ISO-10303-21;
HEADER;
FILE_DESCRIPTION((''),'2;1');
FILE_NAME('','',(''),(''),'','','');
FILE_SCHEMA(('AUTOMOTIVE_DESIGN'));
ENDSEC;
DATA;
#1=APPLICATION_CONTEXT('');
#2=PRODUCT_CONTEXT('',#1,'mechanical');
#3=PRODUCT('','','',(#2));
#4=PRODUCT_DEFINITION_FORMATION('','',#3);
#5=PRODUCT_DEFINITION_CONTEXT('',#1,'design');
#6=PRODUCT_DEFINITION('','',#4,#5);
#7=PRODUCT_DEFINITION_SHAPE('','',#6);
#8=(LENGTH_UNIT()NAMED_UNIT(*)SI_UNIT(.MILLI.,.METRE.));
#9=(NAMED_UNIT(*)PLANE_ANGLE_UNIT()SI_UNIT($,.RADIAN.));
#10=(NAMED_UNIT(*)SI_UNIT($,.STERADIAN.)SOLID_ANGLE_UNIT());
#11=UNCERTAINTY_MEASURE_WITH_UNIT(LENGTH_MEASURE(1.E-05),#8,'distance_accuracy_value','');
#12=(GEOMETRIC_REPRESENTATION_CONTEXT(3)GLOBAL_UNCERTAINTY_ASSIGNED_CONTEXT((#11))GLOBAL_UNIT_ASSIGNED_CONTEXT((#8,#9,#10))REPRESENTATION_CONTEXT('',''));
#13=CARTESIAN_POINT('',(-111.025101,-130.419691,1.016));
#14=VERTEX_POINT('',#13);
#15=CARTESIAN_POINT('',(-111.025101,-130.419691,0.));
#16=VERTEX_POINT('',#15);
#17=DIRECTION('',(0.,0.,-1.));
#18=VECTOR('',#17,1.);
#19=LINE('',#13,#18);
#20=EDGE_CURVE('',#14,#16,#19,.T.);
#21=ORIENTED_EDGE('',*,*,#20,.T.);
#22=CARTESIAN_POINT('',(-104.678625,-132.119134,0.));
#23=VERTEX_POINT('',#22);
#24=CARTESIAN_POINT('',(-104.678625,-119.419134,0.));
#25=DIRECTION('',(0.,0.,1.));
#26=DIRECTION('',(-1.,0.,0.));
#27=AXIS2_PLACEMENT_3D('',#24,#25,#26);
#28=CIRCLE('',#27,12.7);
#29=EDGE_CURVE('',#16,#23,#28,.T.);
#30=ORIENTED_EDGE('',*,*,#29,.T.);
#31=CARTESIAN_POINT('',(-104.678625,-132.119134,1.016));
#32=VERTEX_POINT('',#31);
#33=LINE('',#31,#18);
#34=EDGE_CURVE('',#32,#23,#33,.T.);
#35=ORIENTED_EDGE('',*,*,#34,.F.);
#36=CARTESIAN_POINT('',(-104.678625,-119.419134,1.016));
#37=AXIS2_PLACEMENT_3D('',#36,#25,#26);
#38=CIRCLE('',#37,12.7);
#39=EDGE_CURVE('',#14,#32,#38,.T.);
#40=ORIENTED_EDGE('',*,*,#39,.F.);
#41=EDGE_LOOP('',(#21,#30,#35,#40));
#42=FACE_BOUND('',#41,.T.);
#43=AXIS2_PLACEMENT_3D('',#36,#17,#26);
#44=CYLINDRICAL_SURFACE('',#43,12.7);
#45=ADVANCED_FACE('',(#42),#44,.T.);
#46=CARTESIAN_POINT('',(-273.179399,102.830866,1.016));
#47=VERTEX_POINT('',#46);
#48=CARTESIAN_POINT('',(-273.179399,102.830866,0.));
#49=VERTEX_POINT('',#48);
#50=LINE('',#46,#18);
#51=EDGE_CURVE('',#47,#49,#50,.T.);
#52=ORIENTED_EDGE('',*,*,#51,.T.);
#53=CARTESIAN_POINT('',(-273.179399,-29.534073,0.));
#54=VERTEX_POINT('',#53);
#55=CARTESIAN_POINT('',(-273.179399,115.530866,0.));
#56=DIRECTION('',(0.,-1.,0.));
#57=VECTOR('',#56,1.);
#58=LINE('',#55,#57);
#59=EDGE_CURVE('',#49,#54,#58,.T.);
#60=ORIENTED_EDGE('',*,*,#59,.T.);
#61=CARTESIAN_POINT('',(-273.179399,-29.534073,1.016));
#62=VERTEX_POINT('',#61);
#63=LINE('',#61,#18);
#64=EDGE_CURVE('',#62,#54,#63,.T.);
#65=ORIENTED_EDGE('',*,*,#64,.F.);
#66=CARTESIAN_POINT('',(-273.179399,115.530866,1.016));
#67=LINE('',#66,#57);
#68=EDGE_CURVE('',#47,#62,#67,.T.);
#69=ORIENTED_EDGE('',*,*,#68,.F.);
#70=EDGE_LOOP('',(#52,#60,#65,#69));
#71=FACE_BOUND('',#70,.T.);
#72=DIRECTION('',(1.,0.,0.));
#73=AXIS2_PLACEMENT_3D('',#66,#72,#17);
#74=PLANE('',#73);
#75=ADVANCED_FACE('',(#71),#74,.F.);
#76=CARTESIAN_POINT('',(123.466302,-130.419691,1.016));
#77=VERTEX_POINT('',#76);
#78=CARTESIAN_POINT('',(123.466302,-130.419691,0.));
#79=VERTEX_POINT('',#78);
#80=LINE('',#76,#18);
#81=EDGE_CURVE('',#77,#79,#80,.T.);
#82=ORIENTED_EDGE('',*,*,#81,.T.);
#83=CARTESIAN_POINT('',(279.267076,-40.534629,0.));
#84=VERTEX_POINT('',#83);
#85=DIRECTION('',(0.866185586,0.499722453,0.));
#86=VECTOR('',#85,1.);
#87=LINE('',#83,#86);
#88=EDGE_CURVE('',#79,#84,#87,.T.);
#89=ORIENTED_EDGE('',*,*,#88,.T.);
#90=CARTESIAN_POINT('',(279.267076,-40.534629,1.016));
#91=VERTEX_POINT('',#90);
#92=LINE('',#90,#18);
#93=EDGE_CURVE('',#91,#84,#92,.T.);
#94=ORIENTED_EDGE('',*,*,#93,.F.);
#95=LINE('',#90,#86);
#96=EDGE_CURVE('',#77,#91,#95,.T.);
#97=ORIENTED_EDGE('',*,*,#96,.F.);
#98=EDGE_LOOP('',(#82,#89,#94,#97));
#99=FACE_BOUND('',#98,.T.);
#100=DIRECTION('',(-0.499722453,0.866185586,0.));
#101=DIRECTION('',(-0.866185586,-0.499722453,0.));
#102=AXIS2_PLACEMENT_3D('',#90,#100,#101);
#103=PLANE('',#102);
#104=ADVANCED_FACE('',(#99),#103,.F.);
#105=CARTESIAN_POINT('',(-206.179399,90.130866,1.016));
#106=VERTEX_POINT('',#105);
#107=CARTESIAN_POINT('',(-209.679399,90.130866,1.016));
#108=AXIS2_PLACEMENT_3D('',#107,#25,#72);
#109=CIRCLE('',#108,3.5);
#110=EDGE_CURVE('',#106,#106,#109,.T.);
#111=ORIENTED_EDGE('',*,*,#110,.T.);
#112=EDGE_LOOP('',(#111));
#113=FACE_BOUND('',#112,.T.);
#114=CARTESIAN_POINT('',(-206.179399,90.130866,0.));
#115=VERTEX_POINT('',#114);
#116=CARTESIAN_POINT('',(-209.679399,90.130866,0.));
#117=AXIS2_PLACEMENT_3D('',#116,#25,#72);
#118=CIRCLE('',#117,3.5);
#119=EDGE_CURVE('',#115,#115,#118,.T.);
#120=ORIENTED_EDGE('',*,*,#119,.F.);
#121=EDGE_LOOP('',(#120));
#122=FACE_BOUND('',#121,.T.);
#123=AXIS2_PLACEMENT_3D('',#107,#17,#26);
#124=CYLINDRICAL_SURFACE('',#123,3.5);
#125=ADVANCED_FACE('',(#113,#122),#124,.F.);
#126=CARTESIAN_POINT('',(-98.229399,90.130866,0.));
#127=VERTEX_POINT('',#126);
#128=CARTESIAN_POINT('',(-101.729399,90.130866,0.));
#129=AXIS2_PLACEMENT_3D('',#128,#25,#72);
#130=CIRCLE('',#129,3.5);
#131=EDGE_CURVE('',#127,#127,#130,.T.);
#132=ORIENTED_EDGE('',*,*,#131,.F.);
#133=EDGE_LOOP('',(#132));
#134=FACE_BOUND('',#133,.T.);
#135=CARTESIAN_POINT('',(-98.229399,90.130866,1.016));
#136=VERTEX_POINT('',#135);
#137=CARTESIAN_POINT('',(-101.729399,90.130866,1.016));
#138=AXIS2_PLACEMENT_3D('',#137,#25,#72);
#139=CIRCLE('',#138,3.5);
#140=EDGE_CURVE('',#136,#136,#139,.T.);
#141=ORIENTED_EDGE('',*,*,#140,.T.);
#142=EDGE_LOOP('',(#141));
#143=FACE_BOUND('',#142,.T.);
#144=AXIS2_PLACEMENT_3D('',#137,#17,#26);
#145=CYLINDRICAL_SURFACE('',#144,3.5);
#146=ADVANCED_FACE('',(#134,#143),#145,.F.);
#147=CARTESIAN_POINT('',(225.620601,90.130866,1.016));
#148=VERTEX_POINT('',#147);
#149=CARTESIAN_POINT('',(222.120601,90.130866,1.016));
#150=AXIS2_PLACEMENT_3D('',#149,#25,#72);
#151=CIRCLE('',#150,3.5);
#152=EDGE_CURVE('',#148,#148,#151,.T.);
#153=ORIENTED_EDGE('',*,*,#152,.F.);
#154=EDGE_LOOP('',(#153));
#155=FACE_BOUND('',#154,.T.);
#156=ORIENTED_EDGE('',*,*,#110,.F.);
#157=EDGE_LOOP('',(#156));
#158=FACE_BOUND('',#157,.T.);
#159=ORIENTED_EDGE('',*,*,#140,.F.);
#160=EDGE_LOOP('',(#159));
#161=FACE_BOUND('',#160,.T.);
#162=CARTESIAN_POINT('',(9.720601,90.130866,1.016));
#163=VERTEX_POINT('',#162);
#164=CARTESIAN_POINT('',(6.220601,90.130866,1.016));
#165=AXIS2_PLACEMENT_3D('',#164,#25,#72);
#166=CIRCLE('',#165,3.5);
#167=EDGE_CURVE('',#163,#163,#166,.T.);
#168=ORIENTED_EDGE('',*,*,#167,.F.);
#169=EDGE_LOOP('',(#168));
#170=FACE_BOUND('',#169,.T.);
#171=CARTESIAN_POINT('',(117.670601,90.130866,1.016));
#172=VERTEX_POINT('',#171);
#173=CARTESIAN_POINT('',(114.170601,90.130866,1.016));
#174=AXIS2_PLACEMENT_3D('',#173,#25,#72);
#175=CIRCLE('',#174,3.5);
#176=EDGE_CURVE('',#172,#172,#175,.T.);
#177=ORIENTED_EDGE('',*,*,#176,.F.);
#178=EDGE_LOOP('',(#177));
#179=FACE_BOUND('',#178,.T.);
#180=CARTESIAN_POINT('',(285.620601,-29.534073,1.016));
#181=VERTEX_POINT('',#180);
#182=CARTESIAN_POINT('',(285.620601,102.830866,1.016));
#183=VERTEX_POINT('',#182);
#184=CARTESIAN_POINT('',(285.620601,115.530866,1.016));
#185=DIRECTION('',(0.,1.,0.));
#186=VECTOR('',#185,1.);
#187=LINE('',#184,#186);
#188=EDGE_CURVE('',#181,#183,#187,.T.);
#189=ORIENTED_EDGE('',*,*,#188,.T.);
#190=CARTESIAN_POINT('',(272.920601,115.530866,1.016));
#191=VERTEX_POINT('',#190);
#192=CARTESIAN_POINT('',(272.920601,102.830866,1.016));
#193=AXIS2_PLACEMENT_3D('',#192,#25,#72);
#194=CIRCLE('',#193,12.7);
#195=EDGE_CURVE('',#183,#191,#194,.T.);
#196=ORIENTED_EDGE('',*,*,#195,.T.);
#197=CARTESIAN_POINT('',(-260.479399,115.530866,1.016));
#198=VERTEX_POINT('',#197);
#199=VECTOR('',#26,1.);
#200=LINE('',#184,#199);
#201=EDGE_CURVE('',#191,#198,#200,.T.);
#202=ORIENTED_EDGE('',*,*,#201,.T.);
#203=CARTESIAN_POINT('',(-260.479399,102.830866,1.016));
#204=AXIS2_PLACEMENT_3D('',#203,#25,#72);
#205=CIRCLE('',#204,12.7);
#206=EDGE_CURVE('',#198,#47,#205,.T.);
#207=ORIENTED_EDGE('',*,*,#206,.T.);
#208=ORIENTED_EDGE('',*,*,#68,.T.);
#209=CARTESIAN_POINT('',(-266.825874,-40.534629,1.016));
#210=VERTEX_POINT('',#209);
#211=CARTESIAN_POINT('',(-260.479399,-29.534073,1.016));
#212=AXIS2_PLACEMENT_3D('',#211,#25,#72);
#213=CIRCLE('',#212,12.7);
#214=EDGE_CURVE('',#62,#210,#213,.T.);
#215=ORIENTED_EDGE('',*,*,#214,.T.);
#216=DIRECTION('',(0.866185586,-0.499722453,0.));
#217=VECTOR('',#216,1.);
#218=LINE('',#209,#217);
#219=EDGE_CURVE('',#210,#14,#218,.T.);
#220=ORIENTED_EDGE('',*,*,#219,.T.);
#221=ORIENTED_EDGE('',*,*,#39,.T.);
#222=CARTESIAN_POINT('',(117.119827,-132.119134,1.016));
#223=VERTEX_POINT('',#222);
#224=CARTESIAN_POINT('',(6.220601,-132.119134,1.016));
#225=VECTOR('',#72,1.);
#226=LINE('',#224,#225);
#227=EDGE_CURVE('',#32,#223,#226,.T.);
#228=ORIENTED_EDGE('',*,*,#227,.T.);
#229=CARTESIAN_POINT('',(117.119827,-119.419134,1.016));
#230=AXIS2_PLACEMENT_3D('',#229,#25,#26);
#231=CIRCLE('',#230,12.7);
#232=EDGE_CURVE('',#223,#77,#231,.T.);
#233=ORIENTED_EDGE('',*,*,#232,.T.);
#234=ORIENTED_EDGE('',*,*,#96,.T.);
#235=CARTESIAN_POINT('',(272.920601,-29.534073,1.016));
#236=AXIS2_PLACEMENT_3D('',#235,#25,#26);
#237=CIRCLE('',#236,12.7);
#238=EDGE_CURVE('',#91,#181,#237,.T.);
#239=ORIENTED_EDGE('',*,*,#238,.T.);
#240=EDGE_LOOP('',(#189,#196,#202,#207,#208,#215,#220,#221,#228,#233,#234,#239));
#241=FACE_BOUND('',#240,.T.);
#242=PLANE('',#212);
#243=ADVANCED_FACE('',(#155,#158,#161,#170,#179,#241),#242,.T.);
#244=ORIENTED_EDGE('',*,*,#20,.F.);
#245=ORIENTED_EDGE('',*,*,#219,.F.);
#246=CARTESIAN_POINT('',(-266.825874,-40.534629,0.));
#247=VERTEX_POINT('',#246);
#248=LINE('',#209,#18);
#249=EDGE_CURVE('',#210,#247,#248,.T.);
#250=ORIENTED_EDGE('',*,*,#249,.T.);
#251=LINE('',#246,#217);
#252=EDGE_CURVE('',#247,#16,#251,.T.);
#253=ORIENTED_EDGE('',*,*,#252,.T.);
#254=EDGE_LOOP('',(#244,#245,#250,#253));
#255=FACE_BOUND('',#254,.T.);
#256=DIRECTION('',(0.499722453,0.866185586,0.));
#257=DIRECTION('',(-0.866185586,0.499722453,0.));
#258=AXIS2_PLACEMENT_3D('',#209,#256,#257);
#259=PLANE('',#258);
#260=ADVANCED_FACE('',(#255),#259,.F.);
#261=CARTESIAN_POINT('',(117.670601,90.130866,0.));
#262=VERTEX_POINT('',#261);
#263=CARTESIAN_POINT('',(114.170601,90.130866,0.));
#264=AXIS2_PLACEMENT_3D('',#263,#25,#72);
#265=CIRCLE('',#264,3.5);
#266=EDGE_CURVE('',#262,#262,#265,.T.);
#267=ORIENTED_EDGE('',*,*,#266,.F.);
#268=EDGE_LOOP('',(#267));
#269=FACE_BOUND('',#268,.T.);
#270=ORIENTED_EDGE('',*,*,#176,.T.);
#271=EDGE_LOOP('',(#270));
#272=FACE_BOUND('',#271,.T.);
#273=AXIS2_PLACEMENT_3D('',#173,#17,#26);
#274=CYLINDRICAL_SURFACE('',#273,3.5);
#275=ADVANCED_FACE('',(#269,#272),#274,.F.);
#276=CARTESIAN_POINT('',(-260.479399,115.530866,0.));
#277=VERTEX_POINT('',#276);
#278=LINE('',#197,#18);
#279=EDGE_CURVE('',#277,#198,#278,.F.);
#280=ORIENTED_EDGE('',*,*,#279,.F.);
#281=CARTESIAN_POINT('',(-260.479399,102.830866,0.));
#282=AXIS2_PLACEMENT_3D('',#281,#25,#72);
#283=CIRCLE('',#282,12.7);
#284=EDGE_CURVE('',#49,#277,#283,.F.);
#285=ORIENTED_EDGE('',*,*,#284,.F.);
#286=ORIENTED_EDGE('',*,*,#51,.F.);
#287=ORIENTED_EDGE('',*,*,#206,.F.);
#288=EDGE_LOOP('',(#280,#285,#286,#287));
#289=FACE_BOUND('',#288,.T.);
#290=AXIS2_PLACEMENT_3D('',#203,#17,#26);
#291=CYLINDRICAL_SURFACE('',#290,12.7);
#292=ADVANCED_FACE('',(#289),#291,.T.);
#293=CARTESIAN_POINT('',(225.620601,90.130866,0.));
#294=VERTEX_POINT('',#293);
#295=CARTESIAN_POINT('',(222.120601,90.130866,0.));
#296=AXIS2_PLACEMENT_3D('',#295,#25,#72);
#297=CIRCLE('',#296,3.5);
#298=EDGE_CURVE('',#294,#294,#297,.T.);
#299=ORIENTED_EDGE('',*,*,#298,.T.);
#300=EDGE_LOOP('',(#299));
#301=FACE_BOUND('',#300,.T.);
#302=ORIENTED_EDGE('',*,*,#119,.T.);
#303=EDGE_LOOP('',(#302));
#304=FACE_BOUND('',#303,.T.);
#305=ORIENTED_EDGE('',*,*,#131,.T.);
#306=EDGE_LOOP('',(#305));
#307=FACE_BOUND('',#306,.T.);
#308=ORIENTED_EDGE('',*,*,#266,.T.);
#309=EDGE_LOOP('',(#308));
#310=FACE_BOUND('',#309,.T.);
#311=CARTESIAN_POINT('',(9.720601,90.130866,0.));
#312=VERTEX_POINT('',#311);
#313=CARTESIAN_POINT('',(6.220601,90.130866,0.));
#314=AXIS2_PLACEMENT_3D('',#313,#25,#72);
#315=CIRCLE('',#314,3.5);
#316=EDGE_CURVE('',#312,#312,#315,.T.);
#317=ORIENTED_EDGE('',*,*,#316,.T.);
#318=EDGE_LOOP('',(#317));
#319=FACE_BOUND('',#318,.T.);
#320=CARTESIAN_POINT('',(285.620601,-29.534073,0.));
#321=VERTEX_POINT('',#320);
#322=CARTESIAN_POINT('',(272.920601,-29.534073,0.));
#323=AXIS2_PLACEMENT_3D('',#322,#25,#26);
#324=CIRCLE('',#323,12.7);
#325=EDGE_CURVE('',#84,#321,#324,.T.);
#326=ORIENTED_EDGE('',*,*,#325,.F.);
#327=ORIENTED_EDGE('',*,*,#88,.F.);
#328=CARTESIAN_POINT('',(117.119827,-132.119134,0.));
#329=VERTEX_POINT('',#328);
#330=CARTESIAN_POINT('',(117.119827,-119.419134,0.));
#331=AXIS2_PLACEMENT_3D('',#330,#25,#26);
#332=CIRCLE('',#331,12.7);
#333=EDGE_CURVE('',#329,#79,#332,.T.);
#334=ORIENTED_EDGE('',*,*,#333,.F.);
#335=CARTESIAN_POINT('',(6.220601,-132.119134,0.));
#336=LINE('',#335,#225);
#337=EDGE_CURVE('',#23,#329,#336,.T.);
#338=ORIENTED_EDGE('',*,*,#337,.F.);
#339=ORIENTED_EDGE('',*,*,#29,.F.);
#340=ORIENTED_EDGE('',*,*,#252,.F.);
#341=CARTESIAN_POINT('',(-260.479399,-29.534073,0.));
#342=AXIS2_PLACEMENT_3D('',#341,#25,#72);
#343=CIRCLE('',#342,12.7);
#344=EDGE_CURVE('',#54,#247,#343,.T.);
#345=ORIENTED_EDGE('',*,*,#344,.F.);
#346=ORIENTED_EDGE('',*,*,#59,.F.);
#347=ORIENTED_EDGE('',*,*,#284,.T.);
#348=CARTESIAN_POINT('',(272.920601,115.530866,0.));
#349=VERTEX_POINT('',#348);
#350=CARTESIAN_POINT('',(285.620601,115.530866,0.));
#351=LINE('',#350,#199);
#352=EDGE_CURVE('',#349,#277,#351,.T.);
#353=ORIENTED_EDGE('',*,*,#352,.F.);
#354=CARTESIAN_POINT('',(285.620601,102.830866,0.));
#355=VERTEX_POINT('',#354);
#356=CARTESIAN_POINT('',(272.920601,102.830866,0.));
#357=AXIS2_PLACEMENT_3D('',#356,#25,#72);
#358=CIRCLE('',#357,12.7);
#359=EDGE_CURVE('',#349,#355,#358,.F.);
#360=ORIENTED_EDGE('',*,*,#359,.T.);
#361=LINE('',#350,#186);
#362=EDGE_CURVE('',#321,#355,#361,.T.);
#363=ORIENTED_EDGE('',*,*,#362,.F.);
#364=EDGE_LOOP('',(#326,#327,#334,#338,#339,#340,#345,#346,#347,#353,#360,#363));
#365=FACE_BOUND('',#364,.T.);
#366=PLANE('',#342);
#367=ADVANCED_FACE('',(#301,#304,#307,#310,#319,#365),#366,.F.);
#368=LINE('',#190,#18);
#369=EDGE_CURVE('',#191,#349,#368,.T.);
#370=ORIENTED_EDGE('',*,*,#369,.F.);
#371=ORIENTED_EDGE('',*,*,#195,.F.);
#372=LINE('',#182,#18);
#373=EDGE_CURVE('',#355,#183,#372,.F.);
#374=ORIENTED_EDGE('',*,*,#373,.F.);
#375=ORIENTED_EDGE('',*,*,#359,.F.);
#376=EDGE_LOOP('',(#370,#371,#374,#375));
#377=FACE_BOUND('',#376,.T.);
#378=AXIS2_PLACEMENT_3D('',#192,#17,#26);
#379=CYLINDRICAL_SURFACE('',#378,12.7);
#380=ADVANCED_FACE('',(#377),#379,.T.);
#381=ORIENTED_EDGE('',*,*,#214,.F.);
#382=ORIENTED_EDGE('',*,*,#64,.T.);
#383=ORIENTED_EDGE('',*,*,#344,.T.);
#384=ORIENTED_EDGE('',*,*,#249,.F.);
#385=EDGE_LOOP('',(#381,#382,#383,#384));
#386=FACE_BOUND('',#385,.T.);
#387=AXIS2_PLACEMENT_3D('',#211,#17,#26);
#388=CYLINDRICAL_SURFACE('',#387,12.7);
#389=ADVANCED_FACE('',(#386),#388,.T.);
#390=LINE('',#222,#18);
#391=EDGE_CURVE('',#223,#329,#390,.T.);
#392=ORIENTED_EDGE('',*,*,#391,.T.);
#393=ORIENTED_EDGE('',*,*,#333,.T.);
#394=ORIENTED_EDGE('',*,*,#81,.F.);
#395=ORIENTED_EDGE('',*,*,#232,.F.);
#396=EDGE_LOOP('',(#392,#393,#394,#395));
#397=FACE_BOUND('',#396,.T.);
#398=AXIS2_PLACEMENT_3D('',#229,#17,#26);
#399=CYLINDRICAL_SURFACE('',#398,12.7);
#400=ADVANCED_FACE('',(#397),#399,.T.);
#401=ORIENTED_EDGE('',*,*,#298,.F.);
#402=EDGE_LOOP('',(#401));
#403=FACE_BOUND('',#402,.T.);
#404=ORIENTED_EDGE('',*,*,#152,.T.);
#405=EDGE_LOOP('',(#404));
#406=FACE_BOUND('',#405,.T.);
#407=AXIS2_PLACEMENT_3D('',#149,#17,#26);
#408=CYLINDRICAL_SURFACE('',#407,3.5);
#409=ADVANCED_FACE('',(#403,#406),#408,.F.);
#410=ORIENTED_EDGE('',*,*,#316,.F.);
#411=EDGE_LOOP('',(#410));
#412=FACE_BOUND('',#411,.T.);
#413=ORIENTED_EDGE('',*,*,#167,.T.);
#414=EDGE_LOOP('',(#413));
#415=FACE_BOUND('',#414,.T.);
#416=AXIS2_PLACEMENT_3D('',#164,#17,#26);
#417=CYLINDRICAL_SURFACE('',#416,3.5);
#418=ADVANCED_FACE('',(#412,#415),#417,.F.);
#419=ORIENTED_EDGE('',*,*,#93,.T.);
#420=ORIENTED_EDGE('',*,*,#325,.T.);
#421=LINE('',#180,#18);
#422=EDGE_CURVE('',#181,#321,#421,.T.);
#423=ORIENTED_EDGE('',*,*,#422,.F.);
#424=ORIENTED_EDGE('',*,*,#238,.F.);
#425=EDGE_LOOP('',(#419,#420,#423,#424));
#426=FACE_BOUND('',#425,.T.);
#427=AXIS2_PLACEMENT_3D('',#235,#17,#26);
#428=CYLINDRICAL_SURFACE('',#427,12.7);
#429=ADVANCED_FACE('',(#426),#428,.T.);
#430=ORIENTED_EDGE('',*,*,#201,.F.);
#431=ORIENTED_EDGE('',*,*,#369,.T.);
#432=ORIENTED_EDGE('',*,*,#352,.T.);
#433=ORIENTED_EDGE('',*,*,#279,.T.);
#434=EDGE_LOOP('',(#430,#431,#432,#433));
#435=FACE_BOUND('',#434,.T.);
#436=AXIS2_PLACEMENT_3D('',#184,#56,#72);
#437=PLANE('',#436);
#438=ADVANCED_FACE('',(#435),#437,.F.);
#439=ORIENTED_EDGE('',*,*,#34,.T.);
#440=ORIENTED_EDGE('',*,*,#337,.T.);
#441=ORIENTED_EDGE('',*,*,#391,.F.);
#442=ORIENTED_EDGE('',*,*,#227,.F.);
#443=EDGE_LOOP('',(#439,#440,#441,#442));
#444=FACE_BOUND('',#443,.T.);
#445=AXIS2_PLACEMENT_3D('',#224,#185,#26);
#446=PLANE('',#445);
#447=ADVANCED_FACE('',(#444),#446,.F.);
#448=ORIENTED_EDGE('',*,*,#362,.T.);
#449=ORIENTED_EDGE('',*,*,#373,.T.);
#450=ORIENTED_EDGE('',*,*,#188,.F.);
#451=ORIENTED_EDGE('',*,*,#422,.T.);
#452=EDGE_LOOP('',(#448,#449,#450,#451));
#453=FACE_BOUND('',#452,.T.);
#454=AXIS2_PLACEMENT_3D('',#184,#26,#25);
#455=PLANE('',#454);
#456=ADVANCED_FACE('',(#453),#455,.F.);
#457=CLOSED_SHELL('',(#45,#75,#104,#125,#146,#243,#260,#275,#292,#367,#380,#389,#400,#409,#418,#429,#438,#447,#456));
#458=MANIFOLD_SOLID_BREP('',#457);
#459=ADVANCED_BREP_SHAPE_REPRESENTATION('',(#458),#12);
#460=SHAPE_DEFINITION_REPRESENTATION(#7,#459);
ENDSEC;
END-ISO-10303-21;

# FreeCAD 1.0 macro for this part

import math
import FreeCAD as App
import Part
import Sketcher
from FreeCAD import Vector
Q = App.Units.Quantity


def edges_at(feature, points):
    """Names of the edges that pass closest to the given points."""
    edges = feature.Shape.Edges
    near = lambda p: min(range(len(edges)), key=lambda i: edges[i].distToShape(Part.Vertex(*p))[0])
    return sorted({f"Edge{near(p) + 1}" for p in points})

doc = App.newDocument("Part")
body = doc.addObject("PartDesign::Body", "Body")

# Sketch on XY plane
sketch1 = body.newObject("Sketcher::SketchObject", "Sketch")
sketch1.AttachmentSupport = (doc.getObject("XY_Plane"), [""])
sketch1.MapMode = "FlatFace"
sketch1.addGeometry([
    Part.LineSegment(Vector(285.6, 115.5, 0), Vector(-273.2, 115.5, 0)),  # 0
    Part.LineSegment(Vector(-273.2, 115.5, 0), Vector(-273.2, -29.5, 0)),  # 1
    Part.ArcOfCircle(Part.Circle(Vector(-260.5, -29.5, 0), Vector(0, 0, 1), 12.7), math.radians(180), math.radians(240)),  # 2
    Part.LineSegment(Vector(-266.8, -40.5, 0), Vector(-111, -130.4, 0)),  # 3
    Part.ArcOfCircle(Part.Circle(Vector(-104.7, -119.4, 0), Vector(0, 0, 1), 12.7), math.radians(-120), math.radians(-90)),  # 4
    Part.LineSegment(Vector(-104.7, -132.1, 0), Vector(117.1, -132.1, 0)),  # 5
    Part.ArcOfCircle(Part.Circle(Vector(117.1, -119.4, 0), Vector(0, 0, 1), 12.7), math.radians(-90), math.radians(-60)),  # 6
    Part.LineSegment(Vector(123.5, -130.4, 0), Vector(279.3, -40.5, 0)),  # 7
    Part.ArcOfCircle(Part.Circle(Vector(272.9, -29.5, 0), Vector(0, 0, 1), 12.7), math.radians(-60), math.radians(0)),  # 8
    Part.LineSegment(Vector(285.6, -29.5, 0), Vector(285.6, 115.5, 0)),  # 9
    Part.Circle(Vector(-209.7, 90.1, 0), Vector(0, 0, 1), 3.5),  # 10
    Part.Circle(Vector(-101.7, 90.1, 0), Vector(0, 0, 1), 3.5),  # 11
    Part.Circle(Vector(6.2, 90.1, 0), Vector(0, 0, 1), 3.5),  # 12
    Part.Circle(Vector(114.2, 90.1, 0), Vector(0, 0, 1), 3.5),  # 13
    Part.Circle(Vector(222.1, 90.1, 0), Vector(0, 0, 1), 3.5),  # 14
], False)
sketch1.addConstraint([
    Sketcher.Constraint("Coincident", 0, 2, 1, 1),
    Sketcher.Constraint("Tangent", 1, 2, 2, 1),
    Sketcher.Constraint("Tangent", 2, 2, 3, 1),
    Sketcher.Constraint("Tangent", 3, 2, 4, 1),
    Sketcher.Constraint("Tangent", 4, 2, 5, 1),
    Sketcher.Constraint("Tangent", 5, 2, 6, 1),
    Sketcher.Constraint("Tangent", 6, 2, 7, 1),
    Sketcher.Constraint("Tangent", 7, 2, 8, 1),
    Sketcher.Constraint("Tangent", 8, 2, 9, 1),
    Sketcher.Constraint("Coincident", 9, 2, 0, 1),
    Sketcher.Constraint("Horizontal", 0),
    Sketcher.Constraint("Vertical", 1),
    Sketcher.Constraint("Horizontal", 5),
    Sketcher.Constraint("Vertical", 9),
    Sketcher.Constraint("Equal", 2, 4),
    Sketcher.Constraint("Equal", 4, 6),
    Sketcher.Constraint("Equal", 6, 8),
    Sketcher.Constraint("Equal", 10, 11),
    Sketcher.Constraint("Equal", 11, 12),
    Sketcher.Constraint("Equal", 12, 13),
    Sketcher.Constraint("Equal", 13, 14),
    Sketcher.Constraint("Horizontal", 2, 3, 8, 3),
    Sketcher.Constraint("Horizontal", 10, 3, 11, 3),
    Sketcher.Constraint("Horizontal", 11, 3, 12, 3),
    Sketcher.Constraint("Horizontal", 12, 3, 13, 3),
    Sketcher.Constraint("Horizontal", 13, 3, 14, 3),
    Sketcher.Constraint("Horizontal", 3, 2, 6, 2),
    Sketcher.Constraint("Radius", 2, Q("0.5 in")),
    Sketcher.Constraint("DistanceX", 0, 2, 0, 1, Q("22 in")),
    Sketcher.Constraint("DistanceX", 2, 3, 10, 3, Q("2 in")),
    Sketcher.Constraint("DistanceX", 14, 3, 8, 3, Q("2 in")),
    Sketcher.Constraint("DistanceY", 10, 3, 0, 2, Q("1 in")),
    Sketcher.Constraint("DistanceX", 0, 2, 12, 3, Q("11 in")),
    Sketcher.Constraint("DistanceX", 11, 3, 13, 3, Q("8.5 in")),
    Sketcher.Constraint("Diameter", 10, Q("7 mm")),
    Sketcher.Constraint("DistanceY", 4, 3, 10, 3, Q("8.25 in")),
    Sketcher.Constraint("DistanceX", 10, 3, 11, 3, Q("4.25 in")),
    Sketcher.Constraint("DistanceY", 1, 2, 1, 1, Q("145.064938 mm")),
    Sketcher.Constraint("DistanceX", 2, 3, -1, 1, Q("260.479399 mm")),
    Sketcher.Constraint("DistanceX", 3, 2, -1, 1, Q("111.025101 mm")),
    Sketcher.Constraint("DistanceY", 2, 2, -1, 1, Q("40.534629 mm")),
])
pad1 = body.newObject("PartDesign::Pad", "Pad")
pad1.Profile = sketch1
pad1.Length = Q("0.04 in")
doc.recompute()

fillet = body.newObject("PartDesign::Fillet", "Fillet")
fillet.Base = (pad1, edges_at(pad1, [(-273.179, 115.531, 0.508), (285.621, 115.531, 0.508)]))
fillet.Radius = Q("0.5 in")

doc.recompute()
